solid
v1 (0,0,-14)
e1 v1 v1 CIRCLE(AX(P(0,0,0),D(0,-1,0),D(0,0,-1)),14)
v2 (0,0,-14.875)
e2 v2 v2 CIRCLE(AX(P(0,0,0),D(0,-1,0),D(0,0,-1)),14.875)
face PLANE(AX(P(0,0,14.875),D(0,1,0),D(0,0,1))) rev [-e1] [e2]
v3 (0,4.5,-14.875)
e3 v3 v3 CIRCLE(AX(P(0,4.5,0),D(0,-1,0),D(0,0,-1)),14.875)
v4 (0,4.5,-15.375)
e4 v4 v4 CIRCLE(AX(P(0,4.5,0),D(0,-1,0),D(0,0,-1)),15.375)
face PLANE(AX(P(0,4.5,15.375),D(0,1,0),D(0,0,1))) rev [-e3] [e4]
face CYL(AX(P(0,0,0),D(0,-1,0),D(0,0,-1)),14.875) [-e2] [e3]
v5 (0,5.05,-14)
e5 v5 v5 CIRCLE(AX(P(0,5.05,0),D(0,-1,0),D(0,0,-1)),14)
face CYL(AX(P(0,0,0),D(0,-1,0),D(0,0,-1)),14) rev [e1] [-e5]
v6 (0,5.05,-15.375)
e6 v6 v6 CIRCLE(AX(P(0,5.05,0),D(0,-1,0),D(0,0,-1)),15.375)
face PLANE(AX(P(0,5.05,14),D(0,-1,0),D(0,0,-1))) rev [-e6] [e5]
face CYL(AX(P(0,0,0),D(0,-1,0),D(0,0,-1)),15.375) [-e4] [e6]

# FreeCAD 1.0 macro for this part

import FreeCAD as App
import Part
import Sketcher


def add_polygon(sketch, points):
    """Adds a closed chain of lines whose ends are joined by coincident constraints."""
    first, n = sketch.GeometryCount, len(points)
    for a, b in zip(points, points[1:] + points[:1]):
        sketch.addGeometry(Part.LineSegment(App.Vector(*a, 0), App.Vector(*b, 0)), False)
    for i in range(n):
        sketch.addConstraint(Sketcher.Constraint("Coincident", first + i, 2, first + (i + 1) % n, 1))

doc = App.newDocument("Part")
params = doc.addObject("Spreadsheet::Sheet", "Params")
for row, (alias, value) in enumerate([
    ("sketch1_width", "4.5 mm"),
    ("sketch1_height", "0.5 mm"),
    ("sketch1_width2", "5.05 mm"),
    ("revolution_angle", "360 deg"),
], start=1):
    params.set(f"A{row}", alias)
    params.set(f"B{row}", "=" + value)
    params.setAlias(f"B{row}", alias)

body = doc.addObject("PartDesign::Body", "Body")

# Sketch on YZ plane
sketch1 = body.newObject("Sketcher::SketchObject", "Sketch")
sketch1.AttachmentSupport = (doc.getObject("YZ_Plane"), [""])
sketch1.MapMode = "FlatFace"
add_polygon(sketch1, [(0, 14.9), (0, 14), (5, 14), (5, 15.4), (4.5, 15.4), (4.5, 14.9)])  # lines 0-5
sketch1.addConstraint([
    Sketcher.Constraint("Vertical", 0),
    Sketcher.Constraint("Horizontal", 1),
    Sketcher.Constraint("Vertical", 2),
    Sketcher.Constraint("Horizontal", 3),
    Sketcher.Constraint("Vertical", 4),
    Sketcher.Constraint("Horizontal", 5),
    Sketcher.Constraint("PointOnObject", 0, 2, -2),
    Sketcher.Constraint("DistanceX", 5, 2, 5, 1, 4.5),
    Sketcher.Constraint("DistanceY", 4, 2, 4, 1, 0.5),
    Sketcher.Constraint("DistanceY", -1, 1, 0, 2, 14.0),
    Sketcher.Constraint("DistanceX", 1, 1, 1, 2, 5.05),
    Sketcher.Constraint("DistanceY", 0, 2, 0, 1, 0.875),
])
sketch1.setExpression("Constraints[13]", "Params.sketch1_width")
sketch1.setExpression("Constraints[14]", "Params.sketch1_height")
sketch1.setExpression("Constraints[16]", "Params.sketch1_width2")
revolution = body.newObject("PartDesign::Revolution", "Revolution")
revolution.Profile = sketch1
revolution.ReferenceAxis = (sketch1, ["H_Axis"])
revolution.setExpression("Angle", "Params.revolution_angle")

doc.recompute()
